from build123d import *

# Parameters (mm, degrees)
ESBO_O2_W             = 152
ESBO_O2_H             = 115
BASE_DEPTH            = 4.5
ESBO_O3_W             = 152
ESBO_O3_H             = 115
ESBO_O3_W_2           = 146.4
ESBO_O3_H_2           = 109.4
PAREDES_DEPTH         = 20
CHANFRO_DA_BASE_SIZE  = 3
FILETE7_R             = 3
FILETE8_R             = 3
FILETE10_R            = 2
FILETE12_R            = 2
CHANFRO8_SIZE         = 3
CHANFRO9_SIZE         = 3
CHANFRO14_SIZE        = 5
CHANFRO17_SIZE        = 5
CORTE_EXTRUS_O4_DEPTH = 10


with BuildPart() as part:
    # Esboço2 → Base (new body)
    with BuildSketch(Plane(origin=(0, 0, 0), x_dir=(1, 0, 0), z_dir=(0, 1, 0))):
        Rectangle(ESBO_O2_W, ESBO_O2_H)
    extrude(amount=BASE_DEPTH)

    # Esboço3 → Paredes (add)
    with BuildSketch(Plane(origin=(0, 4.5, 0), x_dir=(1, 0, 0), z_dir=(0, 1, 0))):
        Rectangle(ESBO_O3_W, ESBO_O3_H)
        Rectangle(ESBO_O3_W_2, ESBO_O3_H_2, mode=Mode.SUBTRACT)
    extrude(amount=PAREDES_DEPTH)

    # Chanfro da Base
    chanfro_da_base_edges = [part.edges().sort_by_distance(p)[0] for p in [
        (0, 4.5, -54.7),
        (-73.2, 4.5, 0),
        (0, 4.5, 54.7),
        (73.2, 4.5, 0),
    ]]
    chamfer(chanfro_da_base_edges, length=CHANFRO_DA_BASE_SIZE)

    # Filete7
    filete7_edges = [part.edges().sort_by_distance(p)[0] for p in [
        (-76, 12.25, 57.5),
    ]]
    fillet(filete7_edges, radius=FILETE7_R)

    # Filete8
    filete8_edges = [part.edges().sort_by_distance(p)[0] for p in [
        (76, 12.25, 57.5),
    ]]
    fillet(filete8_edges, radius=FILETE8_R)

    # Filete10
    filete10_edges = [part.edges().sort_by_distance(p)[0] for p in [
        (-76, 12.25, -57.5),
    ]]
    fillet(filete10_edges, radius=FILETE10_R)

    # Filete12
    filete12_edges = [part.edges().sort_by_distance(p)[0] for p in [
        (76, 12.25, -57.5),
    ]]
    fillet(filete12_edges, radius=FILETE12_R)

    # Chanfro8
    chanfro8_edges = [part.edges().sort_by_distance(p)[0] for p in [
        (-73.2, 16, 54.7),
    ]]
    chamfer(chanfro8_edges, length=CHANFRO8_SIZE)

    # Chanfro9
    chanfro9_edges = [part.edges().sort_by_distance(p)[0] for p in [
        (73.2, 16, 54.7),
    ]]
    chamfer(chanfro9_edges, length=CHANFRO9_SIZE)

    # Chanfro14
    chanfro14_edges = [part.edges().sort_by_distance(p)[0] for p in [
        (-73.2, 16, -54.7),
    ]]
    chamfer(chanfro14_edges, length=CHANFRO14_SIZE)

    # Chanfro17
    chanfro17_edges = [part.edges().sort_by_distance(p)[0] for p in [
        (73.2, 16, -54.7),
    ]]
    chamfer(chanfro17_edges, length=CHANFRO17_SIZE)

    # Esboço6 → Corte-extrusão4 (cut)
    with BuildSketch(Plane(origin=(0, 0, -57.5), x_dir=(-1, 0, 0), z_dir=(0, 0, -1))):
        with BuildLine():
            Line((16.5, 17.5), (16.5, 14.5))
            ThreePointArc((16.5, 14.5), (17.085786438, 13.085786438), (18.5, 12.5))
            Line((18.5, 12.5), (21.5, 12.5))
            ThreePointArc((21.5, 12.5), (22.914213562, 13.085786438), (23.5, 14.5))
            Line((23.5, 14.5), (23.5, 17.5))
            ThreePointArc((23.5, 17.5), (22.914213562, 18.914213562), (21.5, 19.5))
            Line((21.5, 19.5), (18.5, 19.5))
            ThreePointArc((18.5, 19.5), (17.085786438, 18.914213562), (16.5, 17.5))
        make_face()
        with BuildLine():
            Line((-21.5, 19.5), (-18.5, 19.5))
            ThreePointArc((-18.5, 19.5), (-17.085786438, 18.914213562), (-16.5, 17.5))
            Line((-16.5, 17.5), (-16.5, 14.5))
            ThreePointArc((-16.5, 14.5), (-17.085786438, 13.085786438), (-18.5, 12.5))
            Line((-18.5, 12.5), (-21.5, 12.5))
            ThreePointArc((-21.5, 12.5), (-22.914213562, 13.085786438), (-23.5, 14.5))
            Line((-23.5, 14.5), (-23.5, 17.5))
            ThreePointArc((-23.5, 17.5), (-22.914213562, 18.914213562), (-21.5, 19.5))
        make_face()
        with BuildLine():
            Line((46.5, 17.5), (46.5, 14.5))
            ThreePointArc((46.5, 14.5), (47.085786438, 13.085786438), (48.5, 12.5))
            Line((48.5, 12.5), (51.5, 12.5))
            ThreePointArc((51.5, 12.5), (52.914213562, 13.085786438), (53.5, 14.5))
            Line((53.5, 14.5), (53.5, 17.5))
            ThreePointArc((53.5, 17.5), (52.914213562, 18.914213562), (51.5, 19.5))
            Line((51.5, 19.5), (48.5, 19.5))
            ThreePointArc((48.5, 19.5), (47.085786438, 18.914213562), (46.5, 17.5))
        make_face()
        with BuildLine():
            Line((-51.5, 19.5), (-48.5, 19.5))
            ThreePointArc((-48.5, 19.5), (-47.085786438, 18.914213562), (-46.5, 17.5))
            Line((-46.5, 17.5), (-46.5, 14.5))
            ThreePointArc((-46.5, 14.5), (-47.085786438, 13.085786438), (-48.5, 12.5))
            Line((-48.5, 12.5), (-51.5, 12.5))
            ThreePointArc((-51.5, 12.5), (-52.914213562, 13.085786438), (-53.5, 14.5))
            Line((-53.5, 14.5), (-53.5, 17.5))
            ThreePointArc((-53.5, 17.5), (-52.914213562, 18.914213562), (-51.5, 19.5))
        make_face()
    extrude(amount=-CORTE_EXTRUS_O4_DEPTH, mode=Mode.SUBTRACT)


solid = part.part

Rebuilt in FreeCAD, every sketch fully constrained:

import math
import FreeCAD as App
import Part
import Sketcher

V = App.Vector


def edges_at(feature, points):
    """Names of the edges that pass closest to the given points."""
    edges = feature.Shape.Edges
    near = lambda p: min(range(len(edges)), key=lambda i: edges[i].distToShape(Part.Vertex(*p))[0])
    return sorted({f"Edge{near(p) + 1}" for p in points})

doc = App.newDocument("Part")
body = doc.addObject("PartDesign::Body", "Body")

# Sketch on XZ plane
sketch1 = body.newObject("Sketcher::SketchObject", "Sketch")
sketch1.AttachmentSupport = (doc.getObject("XZ_Plane"), [""])
sketch1.MapMode = "FlatFace"
sketch1.addGeometry([
    Part.LineSegment(V(-76, -58, 0), V(-76, 58, 0)),
    Part.LineSegment(V(-76, 58, 0), V(76, 58, 0)),
    Part.LineSegment(V(76, 58, 0), V(76, -58, 0)),
    Part.LineSegment(V(76, -58, 0), V(-76, -58, 0)),
], False)
sketch1.addConstraint([
    Sketcher.Constraint("Coincident", 0, 2, 1, 1),
    Sketcher.Constraint("Coincident", 1, 2, 2, 1),
    Sketcher.Constraint("Coincident", 2, 2, 3, 1),
    Sketcher.Constraint("Coincident", 3, 2, 0, 1),
    Sketcher.Constraint("Vertical", 0),
    Sketcher.Constraint("Horizontal", 1),
    Sketcher.Constraint("Vertical", 2),
    Sketcher.Constraint("Horizontal", 3),
    Sketcher.Constraint("Symmetric", 0, 2, 2, 2, -1, 1),
    Sketcher.Constraint("DistanceX", 1, 1, 1, 2, 152.0),
    Sketcher.Constraint("DistanceY", 0, 1, 0, 2, 115.0),
])
pad1 = body.newObject("PartDesign::Pad", "Pad")
pad1.Profile = sketch1
pad1.Length = 4.5
pad1.Reversed = True

# Sketch on XZ plane
sketch2 = body.newObject("Sketcher::SketchObject", "Sketch001")
sketch2.AttachmentSupport = (doc.getObject("XZ_Plane"), [""])
sketch2.MapMode = "FlatFace"
sketch2.AttachmentOffset = App.Placement(V(0, 0, -4.5), App.Rotation())
sketch2.addGeometry([
    Part.LineSegment(V(-76, -58, 0), V(-76, 58, 0)),  # 0
    Part.LineSegment(V(-76, 58, 0), V(76, 58, 0)),  # 1
    Part.LineSegment(V(76, 58, 0), V(76, -58, 0)),  # 2
    Part.LineSegment(V(76, -58, 0), V(-76, -58, 0)),  # 3
    Part.LineSegment(V(73, 55, 0), V(-73, 55, 0)),  # 4
    Part.LineSegment(V(-73, 55, 0), V(-73, -55, 0)),  # 5
    Part.LineSegment(V(-73, -55, 0), V(73, -55, 0)),  # 6
    Part.LineSegment(V(73, -55, 0), V(73, 55, 0)),  # 7
], False)
sketch2.addConstraint([
    Sketcher.Constraint("Coincident", 0, 2, 1, 1),
    Sketcher.Constraint("Coincident", 1, 2, 2, 1),
    Sketcher.Constraint("Coincident", 2, 2, 3, 1),
    Sketcher.Constraint("Coincident", 3, 2, 0, 1),
    Sketcher.Constraint("Coincident", 4, 2, 5, 1),
    Sketcher.Constraint("Coincident", 5, 2, 6, 1),
    Sketcher.Constraint("Coincident", 6, 2, 7, 1),
    Sketcher.Constraint("Coincident", 7, 2, 4, 1),
    Sketcher.Constraint("Vertical", 0),
    Sketcher.Constraint("Horizontal", 1),
    Sketcher.Constraint("Vertical", 2),
    Sketcher.Constraint("Horizontal", 3),
    Sketcher.Constraint("Horizontal", 4),
    Sketcher.Constraint("Vertical", 5),
    Sketcher.Constraint("Horizontal", 6),
    Sketcher.Constraint("Vertical", 7),
    Sketcher.Constraint("Symmetric", 0, 2, 2, 2, -1, 1),
    Sketcher.Constraint("Symmetric", 4, 2, 6, 2, -1, 1),
    Sketcher.Constraint("DistanceX", 1, 1, 1, 2, 152.0),
    Sketcher.Constraint("DistanceY", 0, 1, 0, 2, 115.0),
    Sketcher.Constraint("DistanceX", 4, 2, 4, 1, 146.4),
    Sketcher.Constraint("DistanceY", 5, 2, 5, 1, 109.4),
])
pad2 = body.newObject("PartDesign::Pad", "Pad001")
pad2.Profile = sketch2
pad2.Length = 20
pad2.Reversed = True
doc.recompute()

chamfer = body.newObject("PartDesign::Chamfer", "Chamfer")
chamfer.Base = (pad2, edges_at(pad2, [
    (0, 4.5, -54.7),
    (-73.2, 4.5, 0),
    (0, 4.5, 54.7),
    (73.2, 4.5, 0),
]))
chamfer.Size = 3
doc.recompute()

fillet = body.newObject("PartDesign::Fillet", "Fillet")
fillet.Base = (chamfer, edges_at(chamfer, [(-76, 12.25, 57.5)]))
fillet.Radius = 3
doc.recompute()

fillet2 = body.newObject("PartDesign::Fillet", "Fillet001")
fillet2.Base = (fillet, edges_at(fillet, [(76, 12.25, 57.5)]))
fillet2.Radius = 3
doc.recompute()

fillet3 = body.newObject("PartDesign::Fillet", "Fillet002")
fillet3.Base = (fillet2, edges_at(fillet2, [(-76, 12.25, -57.5)]))
fillet3.Radius = 2
doc.recompute()

fillet4 = body.newObject("PartDesign::Fillet", "Fillet003")
fillet4.Base = (fillet3, edges_at(fillet3, [(76, 12.25, -57.5)]))
fillet4.Radius = 2
doc.recompute()

chamfer2 = body.newObject("PartDesign::Chamfer", "Chamfer001")
chamfer2.Base = (fillet4, edges_at(fillet4, [(-73.2, 16, 54.7)]))
chamfer2.Size = 3
doc.recompute()

chamfer3 = body.newObject("PartDesign::Chamfer", "Chamfer002")
chamfer3.Base = (chamfer2, edges_at(chamfer2, [(73.2, 16, 54.7)]))
chamfer3.Size = 3
doc.recompute()

chamfer4 = body.newObject("PartDesign::Chamfer", "Chamfer003")
chamfer4.Base = (chamfer3, edges_at(chamfer3, [(-73.2, 16, -54.7)]))
chamfer4.Size = 5
doc.recompute()

chamfer5 = body.newObject("PartDesign::Chamfer", "Chamfer004")
chamfer5.Base = (chamfer4, edges_at(chamfer4, [(73.2, 16, -54.7)]))
chamfer5.Size = 5

# Sketch on XY plane
sketch3 = body.newObject("Sketcher::SketchObject", "Sketch002")
sketch3.AttachmentSupport = (doc.getObject("XY_Plane"), [""])
sketch3.MapMode = "FlatFace"
sketch3.AttachmentOffset = App.Placement(V(0, 0, -57.5), App.Rotation())
sketch3.addGeometry([
    Part.LineSegment(V(-16.5, 17.5, 0), V(-16.5, 14.5, 0)),  # 0
    Part.ArcOfCircle(Part.Circle(V(-18.5, 14.5, 0), V(0, 0, 1), 2), math.radians(-90), math.radians(0)),  # 1
    Part.LineSegment(V(-18.5, 12.5, 0), V(-21.5, 12.5, 0)),  # 2
    Part.ArcOfCircle(Part.Circle(V(-21.5, 14.5, 0), V(0, 0, 1), 2), math.radians(-180), math.radians(-90)),  # 3
    Part.LineSegment(V(-23.5, 14.5, 0), V(-23.5, 17.5, 0)),  # 4
    Part.ArcOfCircle(Part.Circle(V(-21.5, 17.5, 0), V(0, 0, 1), 2), math.radians(90), math.radians(180)),  # 5
    Part.LineSegment(V(-21.5, 19.5, 0), V(-18.5, 19.5, 0)),  # 6
    Part.ArcOfCircle(Part.Circle(V(-18.5, 17.5, 0), V(0, 0, 1), 2), math.radians(0), math.radians(90)),  # 7
    Part.LineSegment(V(18.5, 19.5, 0), V(21.5, 19.5, 0)),  # 8
    Part.ArcOfCircle(Part.Circle(V(21.5, 17.5, 0), V(0, 0, 1), 2), math.radians(0), math.radians(90)),  # 9
    Part.LineSegment(V(23.5, 17.5, 0), V(23.5, 14.5, 0)),  # 10
    Part.ArcOfCircle(Part.Circle(V(21.5, 14.5, 0), V(0, 0, 1), 2), math.radians(-90), math.radians(0)),  # 11
    Part.LineSegment(V(21.5, 12.5, 0), V(18.5, 12.5, 0)),  # 12
    Part.ArcOfCircle(Part.Circle(V(18.5, 14.5, 0), V(0, 0, 1), 2), math.radians(-180), math.radians(-90)),  # 13
    Part.LineSegment(V(16.5, 14.5, 0), V(16.5, 17.5, 0)),  # 14
    Part.ArcOfCircle(Part.Circle(V(18.5, 17.5, 0), V(0, 0, 1), 2), math.radians(90), math.radians(180)),  # 15
    Part.LineSegment(V(-46.5, 17.5, 0), V(-46.5, 14.5, 0)),  # 16
    Part.ArcOfCircle(Part.Circle(V(-48.5, 14.5, 0), V(0, 0, 1), 2), math.radians(-90), math.radians(0)),  # 17
    Part.LineSegment(V(-48.5, 12.5, 0), V(-51.5, 12.5, 0)),  # 18
    Part.ArcOfCircle(Part.Circle(V(-51.5, 14.5, 0), V(0, 0, 1), 2), math.radians(-180), math.radians(-90)),  # 19
    Part.LineSegment(V(-53.5, 14.5, 0), V(-53.5, 17.5, 0)),  # 20
    Part.ArcOfCircle(Part.Circle(V(-51.5, 17.5, 0), V(0, 0, 1), 2), math.radians(90), math.radians(180)),  # 21
    Part.LineSegment(V(-51.5, 19.5, 0), V(-48.5, 19.5, 0)),  # 22
    Part.ArcOfCircle(Part.Circle(V(-48.5, 17.5, 0), V(0, 0, 1), 2), math.radians(0), math.radians(90)),  # 23
    Part.LineSegment(V(48.5, 19.5, 0), V(51.5, 19.5, 0)),  # 24
    Part.ArcOfCircle(Part.Circle(V(51.5, 17.5, 0), V(0, 0, 1), 2), math.radians(0), math.radians(90)),  # 25
    Part.LineSegment(V(53.5, 17.5, 0), V(53.5, 14.5, 0)),  # 26
    Part.ArcOfCircle(Part.Circle(V(51.5, 14.5, 0), V(0, 0, 1), 2), math.radians(-90), math.radians(0)),  # 27
    Part.LineSegment(V(51.5, 12.5, 0), V(48.5, 12.5, 0)),  # 28
    Part.ArcOfCircle(Part.Circle(V(48.5, 14.5, 0), V(0, 0, 1), 2), math.radians(-180), math.radians(-90)),  # 29
    Part.LineSegment(V(46.5, 14.5, 0), V(46.5, 17.5, 0)),  # 30
    Part.ArcOfCircle(Part.Circle(V(48.5, 17.5, 0), V(0, 0, 1), 2), math.radians(90), math.radians(180)),  # 31
], False)
sketch3.addConstraint([
    Sketcher.Constraint("Tangent", 0, 2, 1, 2),
    Sketcher.Constraint("Tangent", 1, 1, 2, 1),
    Sketcher.Constraint("Tangent", 2, 2, 3, 2),
    Sketcher.Constraint("Tangent", 3, 1, 4, 1),
    Sketcher.Constraint("Tangent", 4, 2, 5, 2),
    Sketcher.Constraint("Tangent", 5, 1, 6, 1),
    Sketcher.Constraint("Tangent", 6, 2, 7, 2),
    Sketcher.Constraint("Tangent", 7, 1, 0, 1),
    Sketcher.Constraint("Tangent", 8, 2, 9, 2),
    Sketcher.Constraint("Tangent", 9, 1, 10, 1),
    Sketcher.Constraint("Tangent", 10, 2, 11, 2),
    Sketcher.Constraint("Tangent", 11, 1, 12, 1),
    Sketcher.Constraint("Tangent", 12, 2, 13, 2),
    Sketcher.Constraint("Tangent", 13, 1, 14, 1),
    Sketcher.Constraint("Tangent", 14, 2, 15, 2),
    Sketcher.Constraint("Tangent", 15, 1, 8, 1),
    Sketcher.Constraint("Tangent", 16, 2, 17, 2),
    Sketcher.Constraint("Tangent", 17, 1, 18, 1),
    Sketcher.Constraint("Tangent", 18, 2, 19, 2),
    Sketcher.Constraint("Tangent", 19, 1, 20, 1),
    Sketcher.Constraint("Tangent", 20, 2, 21, 2),
    Sketcher.Constraint("Tangent", 21, 1, 22, 1),
    Sketcher.Constraint("Tangent", 22, 2, 23, 2),
    Sketcher.Constraint("Tangent", 23, 1, 16, 1),
    Sketcher.Constraint("Tangent", 24, 2, 25, 2),
    Sketcher.Constraint("Tangent", 25, 1, 26, 1),
    Sketcher.Constraint("Tangent", 26, 2, 27, 2),
    Sketcher.Constraint("Tangent", 27, 1, 28, 1),
    Sketcher.Constraint("Tangent", 28, 2, 29, 2),
    Sketcher.Constraint("Tangent", 29, 1, 30, 1),
    Sketcher.Constraint("Tangent", 30, 2, 31, 2),
    Sketcher.Constraint("Tangent", 31, 1, 24, 1),
    Sketcher.Constraint("Vertical", 0),
    Sketcher.Constraint("Horizontal", 2),
    Sketcher.Constraint("Vertical", 4),
    Sketcher.Constraint("Horizontal", 6),
    Sketcher.Constraint("Horizontal", 8),
    Sketcher.Constraint("Vertical", 10),
    Sketcher.Constraint("Horizontal", 12),
    Sketcher.Constraint("Vertical", 14),
    Sketcher.Constraint("Vertical", 16),
    Sketcher.Constraint("Horizontal", 18),
    Sketcher.Constraint("Vertical", 20),
    Sketcher.Constraint("Horizontal", 22),
    Sketcher.Constraint("Horizontal", 24),
    Sketcher.Constraint("Vertical", 26),
    Sketcher.Constraint("Horizontal", 28),
    Sketcher.Constraint("Vertical", 30),
    Sketcher.Constraint("Equal", 1, 3),
    Sketcher.Constraint("Equal", 3, 5),
    Sketcher.Constraint("Equal", 5, 7),
    Sketcher.Constraint("Equal", 7, 9),
    Sketcher.Constraint("Equal", 9, 11),
    Sketcher.Constraint("Equal", 11, 13),
    Sketcher.Constraint("Equal", 13, 15),
    Sketcher.Constraint("Equal", 15, 17),
    Sketcher.Constraint("Equal", 17, 19),
    Sketcher.Constraint("Equal", 19, 21),
    Sketcher.Constraint("Equal", 21, 23),
    Sketcher.Constraint("Equal", 23, 25),
    Sketcher.Constraint("Equal", 25, 27),
    Sketcher.Constraint("Equal", 27, 29),
    Sketcher.Constraint("Equal", 29, 31),
    Sketcher.Constraint("Symmetric", 5, 3, 9, 3, -2),
    Sketcher.Constraint("Symmetric", 1, 3, 13, 3, -2),
    Sketcher.Constraint("Symmetric", 21, 3, 25, 3, -2),
    Sketcher.Constraint("Symmetric", 17, 3, 29, 3, -2),
    Sketcher.Constraint("Horizontal", 13, 3, 17, 3),
    Sketcher.Constraint("Horizontal", 15, 3, 21, 3),
    Sketcher.Constraint("Equal", 12, 18),
    Sketcher.Constraint("Equal", 28, 0),
    Sketcher.Constraint("Radius", 1, 2.0),
    Sketcher.Constraint("DistanceX", 2, 2, 2, 1, 3.0),
    Sketcher.Constraint("DistanceX", 7, 3, 9, 3, 40.0),
    Sketcher.Constraint("DistanceX", 17, 3, 3, 3, 27.0),
    Sketcher.Constraint("DistanceY", -1, 1, 1, 3, 14.5),
])
pocket1 = body.newObject("PartDesign::Pocket", "Pocket")
pocket1.Profile = sketch3
pocket1.Length = 10
pocket1.Reversed = True

doc.recompute()
